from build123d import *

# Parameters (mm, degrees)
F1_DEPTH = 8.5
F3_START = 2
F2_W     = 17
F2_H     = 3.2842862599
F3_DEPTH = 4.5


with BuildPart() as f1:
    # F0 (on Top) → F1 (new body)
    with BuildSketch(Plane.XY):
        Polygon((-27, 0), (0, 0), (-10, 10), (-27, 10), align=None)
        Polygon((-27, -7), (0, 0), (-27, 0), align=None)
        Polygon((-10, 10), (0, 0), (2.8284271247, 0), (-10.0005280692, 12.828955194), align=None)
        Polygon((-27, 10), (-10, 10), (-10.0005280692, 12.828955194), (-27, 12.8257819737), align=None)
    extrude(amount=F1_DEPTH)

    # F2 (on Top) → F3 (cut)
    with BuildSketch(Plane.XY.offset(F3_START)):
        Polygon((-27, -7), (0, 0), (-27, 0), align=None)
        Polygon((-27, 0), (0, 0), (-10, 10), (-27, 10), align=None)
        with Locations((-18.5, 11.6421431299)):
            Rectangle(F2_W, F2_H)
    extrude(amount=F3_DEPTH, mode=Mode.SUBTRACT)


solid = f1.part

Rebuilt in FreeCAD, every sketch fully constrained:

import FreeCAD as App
import Part
import Sketcher

V = App.Vector
Q = App.Units.Quantity

doc = App.newDocument("Part")
params = doc.addObject("Spreadsheet::Sheet", "Params")
for row, (alias, value) in enumerate([
    ("pad1_length", "8.5 mm"),
    ("sketch2_width", "17 mm"),
    ("pocket1_length", "4.5 mm"),
], start=1):
    params.set(f"A{row}", alias)
    params.set(f"B{row}", "=" + value)
    params.setAlias(f"B{row}", alias)

body = doc.addObject("PartDesign::Body", "Body")

# Sketch on XY plane
sketch1 = doc.addObject("Sketcher::SketchObject", "Sketch")
body.addObject(sketch1)
sketch1.AttachmentSupport = (doc.XY_Plane, [""])
sketch1.MapMode = "FlatFace"
sketch1.addGeometry([
    Part.LineSegment(V(-27, -7, 0), V(0, 0, 0)),  # 0
    Part.LineSegment(V(0, 0, 0), V(2.8, 0, 0)),  # 1
    Part.LineSegment(V(2.8, 0, 0), V(-10, 12.8, 0)),  # 2
    Part.LineSegment(V(-10, 12.8, 0), V(-27, 12.8, 0)),  # 3
    Part.LineSegment(V(-27, 12.8, 0), V(-27, -7, 0)),  # 4
], False)
sketch1.addConstraint([
    Sketcher.Constraint("Coincident", 0, 2, 1, 1),
    Sketcher.Constraint("Coincident", 1, 2, 2, 1),
    Sketcher.Constraint("Coincident", 2, 2, 3, 1),
    Sketcher.Constraint("Coincident", 3, 2, 4, 1),
    Sketcher.Constraint("Coincident", 4, 2, 0, 1),
    Sketcher.Constraint("Horizontal", 1),
    Sketcher.Constraint("Vertical", 4),
    Sketcher.Constraint("Coincident", 0, 2, -1, 1),
    Sketcher.Constraint("Angle", 2, Q("135 deg")),
    Sketcher.Constraint("DistanceX", 3, 2, -1, 1, 27.0),
    Sketcher.Constraint("DistanceY", 4, 2, -1, 1, 7.0),
    Sketcher.Constraint("DistanceY", 4, 2, 4, 1, 19.825782),
    Sketcher.Constraint("DistanceX", 1, 1, 1, 2, 2.828427),
    Sketcher.Constraint("DistanceX", 2, 2, -1, 1, 10.000528),
])
pad1 = doc.addObject("PartDesign::Pad", "Pad")
body.addObject(pad1)
pad1.Profile = sketch1
pad1.setExpression("Length", "Params.pad1_length")

# Sketch on XY plane
sketch2 = doc.addObject("Sketcher::SketchObject", "Sketch001")
body.addObject(sketch2)
sketch2.AttachmentSupport = (doc.XY_Plane, [""])
sketch2.MapMode = "FlatFace"
sketch2.AttachmentOffset = App.Placement(V(0, 0, 2), App.Rotation())
sketch2.addGeometry([
    Part.LineSegment(V(-27, -7, 0), V(0, 0, 0)),  # 0
    Part.LineSegment(V(0, 0, 0), V(-10, 10, 0)),  # 1
    Part.LineSegment(V(-10, 10, 0), V(-10, 13.3, 0)),  # 2
    Part.LineSegment(V(-10, 13.3, 0), V(-27, 13.3, 0)),  # 3
    Part.LineSegment(V(-27, 13.3, 0), V(-27, -7, 0)),  # 4
], False)
sketch2.addConstraint([
    Sketcher.Constraint("Coincident", 0, 2, 1, 1),
    Sketcher.Constraint("Coincident", 1, 2, 2, 1),
    Sketcher.Constraint("Coincident", 2, 2, 3, 1),
    Sketcher.Constraint("Coincident", 3, 2, 4, 1),
    Sketcher.Constraint("Coincident", 4, 2, 0, 1),
    Sketcher.Constraint("Vertical", 2),
    Sketcher.Constraint("Horizontal", 3),
    Sketcher.Constraint("Vertical", 4),
    Sketcher.Constraint("Coincident", 0, 2, -1, 1),
    Sketcher.Constraint("DistanceX", 3, 2, 3, 1, 17.0),
    Sketcher.Constraint("Angle", 1, Q("135 deg")),
    Sketcher.Constraint("DistanceX", 1, 2, -1, 1, 10.0),
    Sketcher.Constraint("DistanceY", 4, 2, -1, 1, 7.0),
    Sketcher.Constraint("DistanceY", 2, 1, 2, 2, 3.284286),
])
sketch2.setExpression("Constraints[9]", "Params.sketch2_width")
pocket1 = doc.addObject("PartDesign::Pocket", "Pocket")
body.addObject(pocket1)
pocket1.Profile = sketch2
pocket1.setExpression("Length", "Params.pocket1_length")
pocket1.Reversed = True

doc.recompute()
